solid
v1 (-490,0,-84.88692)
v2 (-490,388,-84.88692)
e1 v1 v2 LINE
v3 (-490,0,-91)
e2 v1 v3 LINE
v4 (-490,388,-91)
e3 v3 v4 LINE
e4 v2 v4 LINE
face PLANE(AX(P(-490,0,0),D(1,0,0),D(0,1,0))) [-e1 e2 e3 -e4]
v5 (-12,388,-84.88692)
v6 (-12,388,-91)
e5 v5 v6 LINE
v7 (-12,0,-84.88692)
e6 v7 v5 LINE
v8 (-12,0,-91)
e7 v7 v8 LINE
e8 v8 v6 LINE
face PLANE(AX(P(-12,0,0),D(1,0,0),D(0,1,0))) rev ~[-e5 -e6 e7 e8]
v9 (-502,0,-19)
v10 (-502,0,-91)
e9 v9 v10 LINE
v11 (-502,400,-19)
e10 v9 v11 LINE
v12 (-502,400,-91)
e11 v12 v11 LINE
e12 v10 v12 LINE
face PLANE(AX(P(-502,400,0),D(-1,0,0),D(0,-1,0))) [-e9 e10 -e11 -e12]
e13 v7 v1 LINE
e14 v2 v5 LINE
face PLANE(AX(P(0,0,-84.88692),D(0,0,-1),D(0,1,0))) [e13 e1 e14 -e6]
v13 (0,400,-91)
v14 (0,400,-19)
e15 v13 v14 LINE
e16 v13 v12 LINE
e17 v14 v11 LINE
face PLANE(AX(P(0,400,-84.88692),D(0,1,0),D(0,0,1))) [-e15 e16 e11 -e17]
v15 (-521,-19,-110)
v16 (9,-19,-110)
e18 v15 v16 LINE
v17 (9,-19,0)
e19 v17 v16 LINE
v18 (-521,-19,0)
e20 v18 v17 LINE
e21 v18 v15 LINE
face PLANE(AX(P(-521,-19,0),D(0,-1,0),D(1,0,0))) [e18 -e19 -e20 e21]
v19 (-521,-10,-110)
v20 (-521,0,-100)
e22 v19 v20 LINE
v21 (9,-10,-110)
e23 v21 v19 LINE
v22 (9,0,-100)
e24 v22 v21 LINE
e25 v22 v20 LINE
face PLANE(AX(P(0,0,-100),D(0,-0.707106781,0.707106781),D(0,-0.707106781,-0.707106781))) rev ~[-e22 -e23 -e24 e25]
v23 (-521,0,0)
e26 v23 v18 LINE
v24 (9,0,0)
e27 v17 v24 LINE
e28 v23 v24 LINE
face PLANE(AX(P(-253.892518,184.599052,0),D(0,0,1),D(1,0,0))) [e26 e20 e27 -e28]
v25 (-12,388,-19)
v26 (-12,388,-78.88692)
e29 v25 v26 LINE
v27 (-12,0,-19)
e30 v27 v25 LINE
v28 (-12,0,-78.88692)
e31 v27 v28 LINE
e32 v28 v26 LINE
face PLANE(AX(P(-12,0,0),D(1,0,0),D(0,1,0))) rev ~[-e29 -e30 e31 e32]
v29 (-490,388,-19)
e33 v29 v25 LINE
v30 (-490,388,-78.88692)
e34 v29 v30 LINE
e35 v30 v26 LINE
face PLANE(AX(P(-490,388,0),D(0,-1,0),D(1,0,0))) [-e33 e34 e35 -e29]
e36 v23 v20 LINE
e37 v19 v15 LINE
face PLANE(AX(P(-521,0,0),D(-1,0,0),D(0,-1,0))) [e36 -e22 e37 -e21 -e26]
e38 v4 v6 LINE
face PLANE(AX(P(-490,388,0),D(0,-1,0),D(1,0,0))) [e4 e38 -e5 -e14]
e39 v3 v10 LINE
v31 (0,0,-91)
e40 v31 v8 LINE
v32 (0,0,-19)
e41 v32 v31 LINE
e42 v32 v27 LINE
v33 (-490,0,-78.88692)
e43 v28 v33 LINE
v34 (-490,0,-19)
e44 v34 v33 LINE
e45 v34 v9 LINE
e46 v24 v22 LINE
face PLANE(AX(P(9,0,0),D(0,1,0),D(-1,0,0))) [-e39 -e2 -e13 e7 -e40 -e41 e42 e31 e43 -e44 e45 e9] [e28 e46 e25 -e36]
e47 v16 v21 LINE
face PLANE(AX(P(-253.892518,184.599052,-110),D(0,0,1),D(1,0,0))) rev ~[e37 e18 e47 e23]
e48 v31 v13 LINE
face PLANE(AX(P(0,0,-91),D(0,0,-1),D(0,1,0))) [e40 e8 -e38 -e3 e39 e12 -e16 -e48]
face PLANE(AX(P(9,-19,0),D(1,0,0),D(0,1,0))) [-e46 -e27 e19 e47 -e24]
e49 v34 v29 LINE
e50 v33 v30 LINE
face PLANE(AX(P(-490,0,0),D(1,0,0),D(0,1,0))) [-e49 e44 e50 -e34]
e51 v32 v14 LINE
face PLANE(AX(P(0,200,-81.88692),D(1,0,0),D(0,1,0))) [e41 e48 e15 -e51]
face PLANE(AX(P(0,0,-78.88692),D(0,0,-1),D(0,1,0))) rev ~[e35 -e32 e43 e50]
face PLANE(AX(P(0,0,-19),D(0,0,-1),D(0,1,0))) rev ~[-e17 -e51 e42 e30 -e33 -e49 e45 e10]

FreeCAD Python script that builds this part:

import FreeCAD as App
import Part
import Sketcher
from FreeCAD import Vector
Q = App.Units.Quantity

doc = App.newDocument("Part")
body = doc.addObject("PartDesign::Body", "Body")

sketch1 = body.newObject("Sketcher::SketchObject", "Sketch")
sketch1.AttachmentSupport = (doc.getObject("XY_Plane"), [""])
sketch1.MapMode = "FlatFace"
sketch1.addGeometry([
    Part.LineSegment(Vector(0, 0, 0), Vector(0, 400, 0)),
    Part.LineSegment(Vector(0, 400, 0), Vector(-502, 400, 0)),
    Part.LineSegment(Vector(-502, 400, 0), Vector(-502, 0, 0)),
    Part.LineSegment(Vector(-502, 0, 0), Vector(-521, 0, 0)),
    Part.LineSegment(Vector(-521, 0, 0), Vector(-521, -19, 0)),
    Part.LineSegment(Vector(-521, -19, 0), Vector(9, -19, 0)),
    Part.LineSegment(Vector(9, -19, 0), Vector(9, 0, 0)),
    Part.LineSegment(Vector(9, 0, 0), Vector(0, 0, 0)),
    Part.LineSegment(Vector(-12, 0, 0), Vector(-490, 0, 0)),
    Part.LineSegment(Vector(-490, 0, 0), Vector(-490, 388, 0)),
    Part.LineSegment(Vector(-490, 388, 0), Vector(-12, 388, 0)),
    Part.LineSegment(Vector(-12, 388, 0), Vector(-12, 0, 0)),
], False)
sketch1.addConstraint([
    Sketcher.Constraint("Coincident", 0, 2, 1, 1),
    Sketcher.Constraint("Coincident", 1, 2, 2, 1),
    Sketcher.Constraint("Coincident", 2, 2, 3, 1),
    Sketcher.Constraint("Coincident", 3, 2, 4, 1),
    Sketcher.Constraint("Coincident", 4, 2, 5, 1),
    Sketcher.Constraint("Coincident", 5, 2, 6, 1),
    Sketcher.Constraint("Coincident", 6, 2, 7, 1),
    Sketcher.Constraint("Coincident", 7, 2, 0, 1),
    Sketcher.Constraint("Coincident", 8, 2, 9, 1),
    Sketcher.Constraint("Coincident", 9, 2, 10, 1),
    Sketcher.Constraint("Coincident", 10, 2, 11, 1),
    Sketcher.Constraint("Coincident", 11, 2, 8, 1),
    Sketcher.Constraint("Vertical", 0),
    Sketcher.Constraint("Horizontal", 1),
    Sketcher.Constraint("Vertical", 2),
    Sketcher.Constraint("Horizontal", 3),
    Sketcher.Constraint("Vertical", 4),
    Sketcher.Constraint("Horizontal", 5),
    Sketcher.Constraint("Vertical", 6),
    Sketcher.Constraint("Horizontal", 7),
    Sketcher.Constraint("Horizontal", 8),
    Sketcher.Constraint("Vertical", 9),
    Sketcher.Constraint("Horizontal", 10),
    Sketcher.Constraint("Vertical", 11),
    Sketcher.Constraint("Coincident", 7, 2, -1, 1),
    Sketcher.Constraint("PointOnObject", 2, 2, -1),
    Sketcher.Constraint("PointOnObject", 8, 2, -1),
    Sketcher.Constraint("Equal", 3, 4),
    Sketcher.Constraint("DistanceX", 1, 2, 1, 1, Q("502 mm")),
    Sketcher.Constraint("DistanceX", 3, 2, 3, 1, Q("19 mm")),
    Sketcher.Constraint("DistanceX", 5, 1, 5, 2, Q("530 mm")),
    Sketcher.Constraint("DistanceX", 8, 2, 8, 1, Q("478 mm")),
    Sketcher.Constraint("DistanceY", 0, 1, 0, 2, Q("400 mm")),
    Sketcher.Constraint("DistanceY", 9, 1, 9, 2, Q("388 mm")),
    Sketcher.Constraint("DistanceX", 8, 2, -1, 1, Q("490 mm")),
])
pad1 = body.newObject("PartDesign::Pad", "Pad")
pad1.Profile = sketch1
pad1.Length = 110
pad1.Reversed = True

sketch2 = body.newObject("Sketcher::SketchObject", "Sketch001")
sketch2.AttachmentSupport = (doc.getObject("YZ_Plane"), [""])
sketch2.MapMode = "FlatFace"
sketch2.addGeometry([
    Part.LineSegment(Vector(0, -91, 0), Vector(0, -110, 0)),
    Part.LineSegment(Vector(0, -110, 0), Vector(400, -110, 0)),
    Part.LineSegment(Vector(400, -110, 0), Vector(400, -91, 0)),
    Part.LineSegment(Vector(400, -91, 0), Vector(0, -91, 0)),
    Part.LineSegment(Vector(0, 0, 0), Vector(0, -19, 0)),
    Part.LineSegment(Vector(0, -19, 0), Vector(400, -19, 0)),
    Part.LineSegment(Vector(400, -19, 0), Vector(400, 0, 0)),
    Part.LineSegment(Vector(400, 0, 0), Vector(0, 0, 0)),
], False)
sketch2.addConstraint([
    Sketcher.Constraint("Coincident", 0, 2, 1, 1),
    Sketcher.Constraint("Coincident", 1, 2, 2, 1),
    Sketcher.Constraint("Coincident", 2, 2, 3, 1),
    Sketcher.Constraint("Coincident", 3, 2, 0, 1),
    Sketcher.Constraint("Coincident", 4, 2, 5, 1),
    Sketcher.Constraint("Coincident", 5, 2, 6, 1),
    Sketcher.Constraint("Coincident", 6, 2, 7, 1),
    Sketcher.Constraint("Coincident", 7, 2, 4, 1),
    Sketcher.Constraint("Vertical", 0),
    Sketcher.Constraint("Horizontal", 1),
    Sketcher.Constraint("Vertical", 2),
    Sketcher.Constraint("Horizontal", 3),
    Sketcher.Constraint("Vertical", 4),
    Sketcher.Constraint("Horizontal", 5),
    Sketcher.Constraint("Vertical", 6),
    Sketcher.Constraint("Horizontal", 7),
    Sketcher.Constraint("Coincident", 7, 2, -1, 1),
    Sketcher.Constraint("PointOnObject", 0, 2, -2),
    Sketcher.Constraint("Vertical", 2, 2, 5, 2),
    Sketcher.Constraint("Equal", 2, 4),
    Sketcher.Constraint("DistanceX", 1, 1, 1, 2, Q("400 mm")),
    Sketcher.Constraint("DistanceY", 0, 2, 0, 1, Q("19 mm")),
    Sketcher.Constraint("DistanceY", 0, 2, -1, 1, Q("110 mm")),
])
pocket1 = body.newObject("PartDesign::Pocket", "Pocket")
pocket1.Profile = sketch2
pocket1.Length = 502

sketch3 = body.newObject("Sketcher::SketchObject", "Sketch002")
sketch3.AttachmentSupport = (doc.getObject("YZ_Plane"), [""])
sketch3.MapMode = "FlatFace"
sketch3.addGeometry([
    Part.LineSegment(Vector(0, -79, 0), Vector(0, -85, 0)),
    Part.LineSegment(Vector(0, -85, 0), Vector(400, -85, 0)),
    Part.LineSegment(Vector(400, -85, 0), Vector(400, -79, 0)),
    Part.LineSegment(Vector(400, -79, 0), Vector(0, -79, 0)),
], False)
sketch3.addConstraint([
    Sketcher.Constraint("Coincident", 0, 2, 1, 1),
    Sketcher.Constraint("Coincident", 1, 2, 2, 1),
    Sketcher.Constraint("Coincident", 2, 2, 3, 1),
    Sketcher.Constraint("Coincident", 3, 2, 0, 1),
    Sketcher.Constraint("Vertical", 0),
    Sketcher.Constraint("Horizontal", 1),
    Sketcher.Constraint("Vertical", 2),
    Sketcher.Constraint("Horizontal", 3),
    Sketcher.Constraint("PointOnObject", 0, 2, -2),
    Sketcher.Constraint("DistanceX", 1, 1, 1, 2, Q("400 mm")),
    Sketcher.Constraint("DistanceY", 0, 2, 0, 1, Q("6 mm")),
    Sketcher.Constraint("DistanceY", 0, 2, -1, 1, Q("84.88692 mm")),
])
pad2 = body.newObject("PartDesign::Pad", "Pad001")
pad2.Profile = sketch3
pad2.Length = 502
pad2.Reversed = True

sketch4 = body.newObject("Sketcher::SketchObject", "Sketch003")
sketch4.AttachmentSupport = (doc.getObject("YZ_Plane"), [""])
sketch4.MapMode = "FlatFace"
sketch4.addGeometry([
    Part.LineSegment(Vector(-10, -110, 0), Vector(0, -110, 0)),
    Part.LineSegment(Vector(0, -110, 0), Vector(0, -100, 0)),
    Part.LineSegment(Vector(0, -100, 0), Vector(-10, -110, 0)),
], False)
sketch4.addConstraint([
    Sketcher.Constraint("Coincident", 0, 2, 1, 1),
    Sketcher.Constraint("Coincident", 1, 2, 2, 1),
    Sketcher.Constraint("Coincident", 2, 2, 0, 1),
    Sketcher.Constraint("Horizontal", 0),
    Sketcher.Constraint("Vertical", 1),
    Sketcher.Constraint("PointOnObject", 0, 2, -2),
    Sketcher.Constraint("Equal", 0, 1),
    Sketcher.Constraint("DistanceX", 0, 1, 0, 2, Q("10 mm")),
    Sketcher.Constraint("DistanceY", 0, 2, -1, 1, Q("110 mm")),
])
pocket2 = body.newObject("PartDesign::Pocket", "Pocket001")
pocket2.Profile = sketch4
pocket2.Length = 1118
pocket2.Midplane = True

doc.recompute()
